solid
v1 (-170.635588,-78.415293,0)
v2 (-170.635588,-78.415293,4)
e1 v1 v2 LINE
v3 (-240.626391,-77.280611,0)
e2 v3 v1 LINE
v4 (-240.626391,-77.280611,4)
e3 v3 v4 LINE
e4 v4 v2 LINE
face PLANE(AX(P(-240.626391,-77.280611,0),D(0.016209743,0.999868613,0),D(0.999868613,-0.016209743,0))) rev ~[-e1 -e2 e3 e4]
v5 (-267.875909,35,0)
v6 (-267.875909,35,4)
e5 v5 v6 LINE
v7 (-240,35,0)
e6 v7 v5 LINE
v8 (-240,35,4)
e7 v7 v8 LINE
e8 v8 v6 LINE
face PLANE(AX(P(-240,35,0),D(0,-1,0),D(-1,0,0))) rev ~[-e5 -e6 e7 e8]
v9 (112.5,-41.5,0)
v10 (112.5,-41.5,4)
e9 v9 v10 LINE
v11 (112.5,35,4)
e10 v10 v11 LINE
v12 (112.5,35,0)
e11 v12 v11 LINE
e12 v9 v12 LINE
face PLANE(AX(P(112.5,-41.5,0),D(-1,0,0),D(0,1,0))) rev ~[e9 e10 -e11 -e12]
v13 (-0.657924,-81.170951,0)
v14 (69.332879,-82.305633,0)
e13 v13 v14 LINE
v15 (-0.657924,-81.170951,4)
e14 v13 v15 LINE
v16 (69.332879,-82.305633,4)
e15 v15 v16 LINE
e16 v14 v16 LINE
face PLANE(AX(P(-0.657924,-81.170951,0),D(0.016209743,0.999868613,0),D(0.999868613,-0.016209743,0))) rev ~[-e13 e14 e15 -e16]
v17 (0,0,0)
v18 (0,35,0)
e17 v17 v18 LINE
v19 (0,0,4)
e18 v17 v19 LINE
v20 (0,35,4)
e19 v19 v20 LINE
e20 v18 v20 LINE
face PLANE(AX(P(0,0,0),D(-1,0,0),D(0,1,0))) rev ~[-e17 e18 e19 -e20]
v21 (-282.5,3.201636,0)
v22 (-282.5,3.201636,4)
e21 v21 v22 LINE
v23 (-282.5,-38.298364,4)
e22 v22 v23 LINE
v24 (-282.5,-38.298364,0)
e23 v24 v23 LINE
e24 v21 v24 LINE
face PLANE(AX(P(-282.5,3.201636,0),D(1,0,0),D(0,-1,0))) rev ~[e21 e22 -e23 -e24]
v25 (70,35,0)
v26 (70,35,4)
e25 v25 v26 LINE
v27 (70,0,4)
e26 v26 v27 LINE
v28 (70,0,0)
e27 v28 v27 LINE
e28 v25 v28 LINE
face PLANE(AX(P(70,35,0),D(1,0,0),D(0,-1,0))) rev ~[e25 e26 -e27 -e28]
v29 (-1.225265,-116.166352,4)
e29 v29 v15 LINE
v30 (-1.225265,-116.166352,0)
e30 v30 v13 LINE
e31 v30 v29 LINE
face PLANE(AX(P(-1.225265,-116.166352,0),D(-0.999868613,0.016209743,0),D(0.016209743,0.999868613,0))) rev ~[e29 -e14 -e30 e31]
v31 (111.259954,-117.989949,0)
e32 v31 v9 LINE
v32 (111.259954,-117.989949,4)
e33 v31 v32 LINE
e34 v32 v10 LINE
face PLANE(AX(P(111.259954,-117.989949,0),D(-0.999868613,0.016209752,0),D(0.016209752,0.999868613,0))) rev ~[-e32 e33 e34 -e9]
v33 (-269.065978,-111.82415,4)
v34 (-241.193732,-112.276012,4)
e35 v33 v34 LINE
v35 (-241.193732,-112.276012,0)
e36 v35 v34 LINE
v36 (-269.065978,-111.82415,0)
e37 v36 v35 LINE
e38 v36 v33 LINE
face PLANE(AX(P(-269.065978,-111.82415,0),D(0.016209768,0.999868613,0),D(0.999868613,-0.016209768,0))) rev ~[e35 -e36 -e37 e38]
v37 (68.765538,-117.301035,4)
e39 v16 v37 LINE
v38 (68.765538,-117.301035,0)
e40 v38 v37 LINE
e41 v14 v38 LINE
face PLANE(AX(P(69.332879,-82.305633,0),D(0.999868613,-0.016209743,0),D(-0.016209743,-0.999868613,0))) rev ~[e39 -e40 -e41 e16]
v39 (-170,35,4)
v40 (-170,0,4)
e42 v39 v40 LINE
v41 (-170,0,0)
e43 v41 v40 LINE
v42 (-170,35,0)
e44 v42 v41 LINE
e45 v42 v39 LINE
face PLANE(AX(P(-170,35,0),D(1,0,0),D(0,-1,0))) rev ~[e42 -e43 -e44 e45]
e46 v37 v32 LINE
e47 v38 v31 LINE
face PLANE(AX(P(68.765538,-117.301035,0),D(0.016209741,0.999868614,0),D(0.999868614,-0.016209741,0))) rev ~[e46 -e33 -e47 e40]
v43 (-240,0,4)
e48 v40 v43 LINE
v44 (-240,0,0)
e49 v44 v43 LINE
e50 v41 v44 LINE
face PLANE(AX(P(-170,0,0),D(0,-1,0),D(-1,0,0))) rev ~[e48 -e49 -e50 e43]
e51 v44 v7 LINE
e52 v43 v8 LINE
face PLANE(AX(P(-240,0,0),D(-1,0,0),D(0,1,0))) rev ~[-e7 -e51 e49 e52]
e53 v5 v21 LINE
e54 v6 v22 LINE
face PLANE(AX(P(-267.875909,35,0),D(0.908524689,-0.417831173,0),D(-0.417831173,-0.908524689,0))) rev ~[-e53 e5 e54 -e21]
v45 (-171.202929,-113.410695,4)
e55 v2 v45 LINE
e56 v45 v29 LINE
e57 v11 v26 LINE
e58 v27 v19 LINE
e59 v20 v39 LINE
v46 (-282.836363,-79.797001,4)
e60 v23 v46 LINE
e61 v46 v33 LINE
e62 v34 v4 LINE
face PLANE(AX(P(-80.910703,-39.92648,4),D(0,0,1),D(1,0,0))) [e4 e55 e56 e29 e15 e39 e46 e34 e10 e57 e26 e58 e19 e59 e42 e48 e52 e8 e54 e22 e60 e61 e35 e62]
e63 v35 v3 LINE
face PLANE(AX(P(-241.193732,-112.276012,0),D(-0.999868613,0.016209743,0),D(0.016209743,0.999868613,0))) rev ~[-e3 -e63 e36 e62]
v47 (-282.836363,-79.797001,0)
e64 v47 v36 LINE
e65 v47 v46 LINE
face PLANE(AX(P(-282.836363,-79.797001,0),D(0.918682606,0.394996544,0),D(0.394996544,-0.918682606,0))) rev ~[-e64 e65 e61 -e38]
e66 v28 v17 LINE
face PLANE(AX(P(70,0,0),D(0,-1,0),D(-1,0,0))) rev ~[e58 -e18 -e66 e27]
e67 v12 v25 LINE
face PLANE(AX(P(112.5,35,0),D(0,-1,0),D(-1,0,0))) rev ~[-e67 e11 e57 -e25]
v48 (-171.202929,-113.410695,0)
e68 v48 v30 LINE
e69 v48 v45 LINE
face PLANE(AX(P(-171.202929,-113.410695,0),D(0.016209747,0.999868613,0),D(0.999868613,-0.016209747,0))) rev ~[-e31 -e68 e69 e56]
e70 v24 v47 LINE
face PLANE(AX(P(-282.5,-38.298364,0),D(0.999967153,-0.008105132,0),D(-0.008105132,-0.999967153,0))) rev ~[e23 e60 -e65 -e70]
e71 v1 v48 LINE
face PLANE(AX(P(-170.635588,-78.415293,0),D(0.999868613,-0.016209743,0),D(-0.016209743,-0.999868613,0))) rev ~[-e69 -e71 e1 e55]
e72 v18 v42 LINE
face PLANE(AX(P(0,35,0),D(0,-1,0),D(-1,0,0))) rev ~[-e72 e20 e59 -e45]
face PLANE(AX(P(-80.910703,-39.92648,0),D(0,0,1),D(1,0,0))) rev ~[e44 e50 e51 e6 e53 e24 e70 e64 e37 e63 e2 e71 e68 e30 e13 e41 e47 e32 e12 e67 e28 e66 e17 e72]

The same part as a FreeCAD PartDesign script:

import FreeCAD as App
import Part
import Sketcher
from FreeCAD import Vector
Q = App.Units.Quantity


def add_polygon(sketch, points):
    """Adds a closed chain of lines whose ends are joined by coincident constraints."""
    first, n = sketch.GeometryCount, len(points)
    for a, b in zip(points, points[1:] + points[:1]):
        sketch.addGeometry(Part.LineSegment(App.Vector(*a, 0), App.Vector(*b, 0)), False)
    for i in range(n):
        sketch.addConstraint(Sketcher.Constraint("Coincident", first + i, 2, first + (i + 1) % n, 1))

doc = App.newDocument("Part")
body = doc.addObject("PartDesign::Body", "Body")

# Sketch on XY plane
sketch1 = doc.addObject("Sketcher::SketchObject", "Sketch")
body.addObject(sketch1)
sketch1.AttachmentSupport = (doc.XY_Plane, [""])
sketch1.MapMode = "FlatFace"
add_polygon(sketch1, [(70, 0), (0, 0), (0, 35), (-170, 35), (-170, 0), (-240, 0), (-240, 35), (-268, 35), (-282, 3), (-282, -38), (-283, -80), (-269, -112), (-241, -112), (-241, -77), (-171, -78), (-171, -113), (-1, -116), (-1, -81), (69, -82), (69, -117), (111, -118), (112, -42), (112, 35), (70, 35)])  # lines 0-23
sketch1.addConstraint([
    Sketcher.Constraint("Horizontal", 0),
    Sketcher.Constraint("Vertical", 1),
    Sketcher.Constraint("Horizontal", 2),
    Sketcher.Constraint("Vertical", 3),
    Sketcher.Constraint("Horizontal", 4),
    Sketcher.Constraint("Vertical", 5),
    Sketcher.Constraint("Horizontal", 6),
    Sketcher.Constraint("Vertical", 8),
    Sketcher.Constraint("Vertical", 21),
    Sketcher.Constraint("Horizontal", 22),
    Sketcher.Constraint("Vertical", 23),
    Sketcher.Constraint("Coincident", 0, 2, -1, 1),
    Sketcher.Constraint("PointOnObject", 3, 2, -1),
    Sketcher.Constraint("Perpendicular", 11, 12),
    Sketcher.Constraint("Perpendicular", 12, 13),
    Sketcher.Constraint("Perpendicular", 13, 14),
    Sketcher.Constraint("Perpendicular", 14, 15),
    Sketcher.Constraint("Perpendicular", 15, 16),
    Sketcher.Constraint("Perpendicular", 16, 17),
    Sketcher.Constraint("Perpendicular", 17, 18),
    Sketcher.Constraint("Perpendicular", 18, 19),
    Sketcher.Constraint("Perpendicular", 19, 20),
    Sketcher.Constraint("Horizontal", 2, 2, 5, 2),
    Sketcher.Constraint("Horizontal", 6, 2, 21, 2),
    Sketcher.Constraint("Equal", 0, 4),
    Sketcher.Constraint("Equal", 7, 12),
    Sketcher.Constraint("Equal", 12, 14),
    Sketcher.Constraint("Equal", 14, 16),
    Sketcher.Constraint("Equal", 13, 17),
    Sketcher.Constraint("Equal", 16, 18),
    Sketcher.Constraint("DistanceX", 0, 2, 0, 1, Q("70 mm")),
    Sketcher.Constraint("DistanceX", 2, 2, 2, 1, Q("170 mm")),
    Sketcher.Constraint("DistanceY", 1, 1, 1, 2, Q("35 mm")),
    Sketcher.Constraint("Distance", 7, Q("35 mm")),
    Sketcher.Constraint("Distance", 13, Q("70 mm")),
    Sketcher.Constraint("Distance", 15, Q("170 mm")),
    Sketcher.Constraint("DistanceX", 22, 2, 22, 1, Q("42.5 mm")),
    Sketcher.Constraint("DistanceY", 8, 2, 8, 1, Q("41.5 mm")),
    Sketcher.Constraint("DistanceY", 21, 1, 21, 2, Q("76.5 mm")),
    Sketcher.Constraint("Distance", 9, Q("41.5 mm")),
    Sketcher.Constraint("Distance", 19, Q("42.5 mm")),
    Sketcher.Constraint("Distance", 20, Q("76.5 mm")),
    Sketcher.Constraint("DistanceX", 7, 2, -1, 1, Q("282.5 mm")),
    Sketcher.Constraint("DistanceY", 9, 2, -1, 1, Q("79.797001 mm")),
    Sketcher.Constraint("DistanceX", 6, 2, 6, 1, Q("27.875909 mm")),
    Sketcher.Constraint("Distance", 10, Q("34.862039 mm")),
    Sketcher.Constraint("Distance", 11, Q("27.875909 mm")),
])
pad1 = doc.addObject("PartDesign::Pad", "Pad")
body.addObject(pad1)
pad1.Profile = sketch1
pad1.Length = 4

doc.recompute()
